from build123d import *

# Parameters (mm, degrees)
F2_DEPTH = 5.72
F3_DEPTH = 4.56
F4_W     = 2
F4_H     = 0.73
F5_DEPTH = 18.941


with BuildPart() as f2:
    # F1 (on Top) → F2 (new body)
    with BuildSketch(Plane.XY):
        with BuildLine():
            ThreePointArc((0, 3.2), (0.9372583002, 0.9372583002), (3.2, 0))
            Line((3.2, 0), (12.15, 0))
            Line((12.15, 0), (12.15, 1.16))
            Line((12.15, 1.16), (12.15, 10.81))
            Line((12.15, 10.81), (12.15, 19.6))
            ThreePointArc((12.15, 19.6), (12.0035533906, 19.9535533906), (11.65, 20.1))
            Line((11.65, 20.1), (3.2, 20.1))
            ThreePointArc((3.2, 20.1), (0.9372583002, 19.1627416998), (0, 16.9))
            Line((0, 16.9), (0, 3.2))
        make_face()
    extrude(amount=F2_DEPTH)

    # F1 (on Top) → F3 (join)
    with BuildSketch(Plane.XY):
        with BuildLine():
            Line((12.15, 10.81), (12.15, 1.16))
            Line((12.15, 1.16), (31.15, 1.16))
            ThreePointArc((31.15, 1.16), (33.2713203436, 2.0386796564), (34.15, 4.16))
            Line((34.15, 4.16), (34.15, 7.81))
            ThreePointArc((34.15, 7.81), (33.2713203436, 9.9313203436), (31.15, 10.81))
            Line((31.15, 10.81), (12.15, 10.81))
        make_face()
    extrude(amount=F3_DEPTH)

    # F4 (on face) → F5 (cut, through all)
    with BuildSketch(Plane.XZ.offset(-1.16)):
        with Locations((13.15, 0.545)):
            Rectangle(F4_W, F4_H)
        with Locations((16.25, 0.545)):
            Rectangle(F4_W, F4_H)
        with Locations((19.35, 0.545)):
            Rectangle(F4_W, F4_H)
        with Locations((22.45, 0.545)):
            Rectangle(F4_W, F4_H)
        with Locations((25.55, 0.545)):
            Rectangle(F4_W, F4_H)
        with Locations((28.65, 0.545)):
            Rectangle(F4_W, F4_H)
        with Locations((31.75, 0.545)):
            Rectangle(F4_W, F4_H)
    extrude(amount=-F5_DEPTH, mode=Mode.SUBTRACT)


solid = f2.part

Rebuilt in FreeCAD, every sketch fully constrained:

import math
import FreeCAD as App
import Part
import Sketcher
from FreeCAD import Vector
Q = App.Units.Quantity

doc = App.newDocument("Part")
body = doc.addObject("PartDesign::Body", "Body")

# Sketch on XY plane
sketch1 = body.newObject("Sketcher::SketchObject", "Sketch")
sketch1.AttachmentSupport = (doc.getObject("XY_Plane"), [""])
sketch1.MapMode = "FlatFace"
sketch1.addGeometry([
    Part.ArcOfCircle(Part.Circle(Vector(3.2, 3.2, 0), Vector(0, 0, 1), 3.2), math.radians(180), math.radians(270)),  # 0
    Part.LineSegment(Vector(3.2, 0, 0), Vector(12.2, 0, 0)),  # 1
    Part.LineSegment(Vector(12.2, 0, 0), Vector(12.2, 19.6, 0)),  # 2
    Part.ArcOfCircle(Part.Circle(Vector(11.7, 19.6, 0), Vector(0, 0, 1), 0.5), math.radians(0), math.radians(90)),  # 3
    Part.LineSegment(Vector(11.7, 20.1, 0), Vector(3.2, 20.1, 0)),  # 4
    Part.ArcOfCircle(Part.Circle(Vector(3.2, 16.9, 0), Vector(0, 0, 1), 3.2), math.radians(90), math.radians(180)),  # 5
    Part.LineSegment(Vector(0, 16.9, 0), Vector(0, 3.2, 0)),  # 6
], False)
sketch1.addConstraint([
    Sketcher.Constraint("Tangent", 0, 2, 1, 1),
    Sketcher.Constraint("Coincident", 1, 2, 2, 1),
    Sketcher.Constraint("Tangent", 2, 2, 3, 1),
    Sketcher.Constraint("Tangent", 3, 2, 4, 1),
    Sketcher.Constraint("Tangent", 4, 2, 5, 1),
    Sketcher.Constraint("Tangent", 5, 2, 6, 1),
    Sketcher.Constraint("Tangent", 6, 2, 0, 1),
    Sketcher.Constraint("Horizontal", 1),
    Sketcher.Constraint("Vertical", 2),
    Sketcher.Constraint("Horizontal", 4),
    Sketcher.Constraint("Vertical", 6),
    Sketcher.Constraint("Equal", 0, 5),
    Sketcher.Constraint("PointOnObject", 0, 2, -1),
    Sketcher.Constraint("PointOnObject", 5, 2, -2),
    Sketcher.Constraint("Radius", 0, Q("3.2 mm")),
    Sketcher.Constraint("Radius", 3, Q("0.5 mm")),
    Sketcher.Constraint("DistanceY", 2, 1, 2, 2, Q("19.6 mm")),
    Sketcher.Constraint("DistanceX", 1, 1, 1, 2, Q("8.95 mm")),
])
pad1 = body.newObject("PartDesign::Pad", "Pad")
pad1.Profile = sketch1
pad1.Length = 5.72

# Sketch on XY plane
sketch2 = body.newObject("Sketcher::SketchObject", "Sketch001")
sketch2.AttachmentSupport = (doc.getObject("XY_Plane"), [""])
sketch2.MapMode = "FlatFace"
sketch2.addGeometry([
    Part.LineSegment(Vector(12.2, 10.8, 0), Vector(12.2, 1.2, 0)),  # 0
    Part.LineSegment(Vector(12.2, 1.2, 0), Vector(31.1, 1.2, 0)),  # 1
    Part.ArcOfCircle(Part.Circle(Vector(31.1, 4.2, 0), Vector(0, 0, 1), 3), math.radians(-90), math.radians(0)),  # 2
    Part.LineSegment(Vector(34.1, 4.2, 0), Vector(34.1, 7.8, 0)),  # 3
    Part.ArcOfCircle(Part.Circle(Vector(31.1, 7.8, 0), Vector(0, 0, 1), 3), math.radians(0), math.radians(90)),  # 4
    Part.LineSegment(Vector(31.1, 10.8, 0), Vector(12.2, 10.8, 0)),  # 5
], False)
sketch2.addConstraint([
    Sketcher.Constraint("Coincident", 0, 2, 1, 1),
    Sketcher.Constraint("Tangent", 1, 2, 2, 1),
    Sketcher.Constraint("Tangent", 2, 2, 3, 1),
    Sketcher.Constraint("Tangent", 3, 2, 4, 1),
    Sketcher.Constraint("Tangent", 4, 2, 5, 1),
    Sketcher.Constraint("Coincident", 5, 2, 0, 1),
    Sketcher.Constraint("Vertical", 0),
    Sketcher.Constraint("Horizontal", 1),
    Sketcher.Constraint("Vertical", 3),
    Sketcher.Constraint("Horizontal", 5),
    Sketcher.Constraint("Equal", 2, 4),
    Sketcher.Constraint("Radius", 2, Q("3 mm")),
    Sketcher.Constraint("DistanceX", 1, 1, 1, 2, Q("19 mm")),
    Sketcher.Constraint("DistanceY", 0, 2, 0, 1, Q("9.65 mm")),
    Sketcher.Constraint("DistanceX", -1, 1, 2, 3, Q("31.15 mm")),
    Sketcher.Constraint("DistanceY", -1, 1, 2, 3, Q("4.16 mm")),
])
pad2 = body.newObject("PartDesign::Pad", "Pad001")
pad2.Profile = sketch2
pad2.Length = 4.56

# Sketch on XZ plane
sketch3 = body.newObject("Sketcher::SketchObject", "Sketch002")
sketch3.AttachmentSupport = (doc.getObject("XZ_Plane"), [""])
sketch3.MapMode = "FlatFace"
sketch3.AttachmentOffset = App.Placement(Vector(0, 0, -1.16), App.Rotation())
sketch3.addGeometry([
    Part.LineSegment(Vector(12.2, 0.9, 0), Vector(12.2, 0.2, 0)),  # 0
    Part.LineSegment(Vector(12.2, 0.2, 0), Vector(14.2, 0.2, 0)),  # 1
    Part.LineSegment(Vector(14.2, 0.2, 0), Vector(14.2, 0.9, 0)),  # 2
    Part.LineSegment(Vector(14.2, 0.9, 0), Vector(12.2, 0.9, 0)),  # 3
    Part.LineSegment(Vector(15.2, 0.9, 0), Vector(15.2, 0.2, 0)),  # 4
    Part.LineSegment(Vector(15.2, 0.2, 0), Vector(17.2, 0.2, 0)),  # 5
    Part.LineSegment(Vector(17.2, 0.2, 0), Vector(17.2, 0.9, 0)),  # 6
    Part.LineSegment(Vector(17.2, 0.9, 0), Vector(15.2, 0.9, 0)),  # 7
    Part.LineSegment(Vector(18.4, 0.9, 0), Vector(18.4, 0.2, 0)),  # 8
    Part.LineSegment(Vector(18.4, 0.2, 0), Vector(20.4, 0.2, 0)),  # 9
    Part.LineSegment(Vector(20.4, 0.2, 0), Vector(20.4, 0.9, 0)),  # 10
    Part.LineSegment(Vector(20.4, 0.9, 0), Vector(18.4, 0.9, 0)),  # 11
    Part.LineSegment(Vector(21.4, 0.9, 0), Vector(21.4, 0.2, 0)),  # 12
    Part.LineSegment(Vector(21.4, 0.2, 0), Vector(23.4, 0.2, 0)),  # 13
    Part.LineSegment(Vector(23.4, 0.2, 0), Vector(23.4, 0.9, 0)),  # 14
    Part.LineSegment(Vector(23.4, 0.9, 0), Vector(21.4, 0.9, 0)),  # 15
    Part.LineSegment(Vector(24.6, 0.9, 0), Vector(24.6, 0.2, 0)),  # 16
    Part.LineSegment(Vector(24.6, 0.2, 0), Vector(26.6, 0.2, 0)),  # 17
    Part.LineSegment(Vector(26.6, 0.2, 0), Vector(26.6, 0.9, 0)),  # 18
    Part.LineSegment(Vector(26.6, 0.9, 0), Vector(24.6, 0.9, 0)),  # 19
    Part.LineSegment(Vector(27.6, 0.9, 0), Vector(27.6, 0.2, 0)),  # 20
    Part.LineSegment(Vector(27.6, 0.2, 0), Vector(29.6, 0.2, 0)),  # 21
    Part.LineSegment(Vector(29.6, 0.2, 0), Vector(29.6, 0.9, 0)),  # 22
    Part.LineSegment(Vector(29.6, 0.9, 0), Vector(27.6, 0.9, 0)),  # 23
    Part.LineSegment(Vector(30.8, 0.9, 0), Vector(30.8, 0.2, 0)),  # 24
    Part.LineSegment(Vector(30.8, 0.2, 0), Vector(32.8, 0.2, 0)),  # 25
    Part.LineSegment(Vector(32.8, 0.2, 0), Vector(32.8, 0.9, 0)),  # 26
    Part.LineSegment(Vector(32.8, 0.9, 0), Vector(30.8, 0.9, 0)),  # 27
], False)
sketch3.addConstraint([
    Sketcher.Constraint("Coincident", 0, 2, 1, 1),
    Sketcher.Constraint("Coincident", 1, 2, 2, 1),
    Sketcher.Constraint("Coincident", 2, 2, 3, 1),
    Sketcher.Constraint("Coincident", 3, 2, 0, 1),
    Sketcher.Constraint("Coincident", 4, 2, 5, 1),
    Sketcher.Constraint("Coincident", 5, 2, 6, 1),
    Sketcher.Constraint("Coincident", 6, 2, 7, 1),
    Sketcher.Constraint("Coincident", 7, 2, 4, 1),
    Sketcher.Constraint("Coincident", 8, 2, 9, 1),
    Sketcher.Constraint("Coincident", 9, 2, 10, 1),
    Sketcher.Constraint("Coincident", 10, 2, 11, 1),
    Sketcher.Constraint("Coincident", 11, 2, 8, 1),
    Sketcher.Constraint("Coincident", 12, 2, 13, 1),
    Sketcher.Constraint("Coincident", 13, 2, 14, 1),
    Sketcher.Constraint("Coincident", 14, 2, 15, 1),
    Sketcher.Constraint("Coincident", 15, 2, 12, 1),
    Sketcher.Constraint("Coincident", 16, 2, 17, 1),
    Sketcher.Constraint("Coincident", 17, 2, 18, 1),
    Sketcher.Constraint("Coincident", 18, 2, 19, 1),
    Sketcher.Constraint("Coincident", 19, 2, 16, 1),
    Sketcher.Constraint("Coincident", 20, 2, 21, 1),
    Sketcher.Constraint("Coincident", 21, 2, 22, 1),
    Sketcher.Constraint("Coincident", 22, 2, 23, 1),
    Sketcher.Constraint("Coincident", 23, 2, 20, 1),
    Sketcher.Constraint("Coincident", 24, 2, 25, 1),
    Sketcher.Constraint("Coincident", 25, 2, 26, 1),
    Sketcher.Constraint("Coincident", 26, 2, 27, 1),
    Sketcher.Constraint("Coincident", 27, 2, 24, 1),
    Sketcher.Constraint("Vertical", 0),
    Sketcher.Constraint("Horizontal", 1),
    Sketcher.Constraint("Vertical", 2),
    Sketcher.Constraint("Horizontal", 3),
    Sketcher.Constraint("Vertical", 4),
    Sketcher.Constraint("Horizontal", 5),
    Sketcher.Constraint("Vertical", 6),
    Sketcher.Constraint("Horizontal", 7),
    Sketcher.Constraint("Vertical", 8),
    Sketcher.Constraint("Horizontal", 9),
    Sketcher.Constraint("Vertical", 10),
    Sketcher.Constraint("Horizontal", 11),
    Sketcher.Constraint("Vertical", 12),
    Sketcher.Constraint("Horizontal", 13),
    Sketcher.Constraint("Vertical", 14),
    Sketcher.Constraint("Horizontal", 15),
    Sketcher.Constraint("Vertical", 16),
    Sketcher.Constraint("Horizontal", 17),
    Sketcher.Constraint("Vertical", 18),
    Sketcher.Constraint("Horizontal", 19),
    Sketcher.Constraint("Vertical", 20),
    Sketcher.Constraint("Horizontal", 21),
    Sketcher.Constraint("Vertical", 22),
    Sketcher.Constraint("Horizontal", 23),
    Sketcher.Constraint("Vertical", 24),
    Sketcher.Constraint("Horizontal", 25),
    Sketcher.Constraint("Vertical", 26),
    Sketcher.Constraint("Horizontal", 27),
    Sketcher.Constraint("Horizontal", 1, 2, 4, 2),
    Sketcher.Constraint("Horizontal", 3, 2, 6, 2),
    Sketcher.Constraint("Horizontal", 5, 2, 8, 2),
    Sketcher.Constraint("Horizontal", 7, 2, 10, 2),
    Sketcher.Constraint("Horizontal", 9, 2, 12, 2),
    Sketcher.Constraint("Horizontal", 11, 2, 14, 2),
    Sketcher.Constraint("Horizontal", 13, 2, 16, 2),
    Sketcher.Constraint("Horizontal", 15, 2, 18, 2),
    Sketcher.Constraint("Horizontal", 17, 2, 20, 2),
    Sketcher.Constraint("Horizontal", 19, 2, 22, 2),
    Sketcher.Constraint("Horizontal", 21, 2, 24, 2),
    Sketcher.Constraint("Horizontal", 23, 2, 26, 2),
    Sketcher.Constraint("Equal", 3, 5),
    Sketcher.Constraint("Equal", 7, 9),
    Sketcher.Constraint("Equal", 11, 13),
    Sketcher.Constraint("Equal", 15, 17),
    Sketcher.Constraint("Equal", 19, 21),
    Sketcher.Constraint("Equal", 23, 25),
    Sketcher.Constraint("DistanceX", 1, 1, 1, 2, Q("2 mm")),
    Sketcher.Constraint("DistanceY", 0, 2, 0, 1, Q("0.73 mm")),
    Sketcher.Constraint("DistanceX", 1, 2, 4, 2, Q("1.1 mm")),
    Sketcher.Constraint("DistanceX", 5, 2, 8, 2, Q("1.1 mm")),
    Sketcher.Constraint("DistanceX", 9, 2, 12, 2, Q("1.1 mm")),
    Sketcher.Constraint("DistanceX", 13, 2, 16, 2, Q("1.1 mm")),
    Sketcher.Constraint("DistanceX", 17, 2, 20, 2, Q("1.1 mm")),
    Sketcher.Constraint("DistanceX", 21, 2, 24, 2, Q("1.1 mm")),
    Sketcher.Constraint("DistanceX", -1, 1, 0, 2, Q("12.15 mm")),
    Sketcher.Constraint("DistanceY", -1, 1, 0, 2, Q("0.18 mm")),
])
pocket1 = body.newObject("PartDesign::Pocket", "Pocket")
pocket1.Profile = sketch3
pocket1.Type = "ThroughAll"

doc.recompute()
